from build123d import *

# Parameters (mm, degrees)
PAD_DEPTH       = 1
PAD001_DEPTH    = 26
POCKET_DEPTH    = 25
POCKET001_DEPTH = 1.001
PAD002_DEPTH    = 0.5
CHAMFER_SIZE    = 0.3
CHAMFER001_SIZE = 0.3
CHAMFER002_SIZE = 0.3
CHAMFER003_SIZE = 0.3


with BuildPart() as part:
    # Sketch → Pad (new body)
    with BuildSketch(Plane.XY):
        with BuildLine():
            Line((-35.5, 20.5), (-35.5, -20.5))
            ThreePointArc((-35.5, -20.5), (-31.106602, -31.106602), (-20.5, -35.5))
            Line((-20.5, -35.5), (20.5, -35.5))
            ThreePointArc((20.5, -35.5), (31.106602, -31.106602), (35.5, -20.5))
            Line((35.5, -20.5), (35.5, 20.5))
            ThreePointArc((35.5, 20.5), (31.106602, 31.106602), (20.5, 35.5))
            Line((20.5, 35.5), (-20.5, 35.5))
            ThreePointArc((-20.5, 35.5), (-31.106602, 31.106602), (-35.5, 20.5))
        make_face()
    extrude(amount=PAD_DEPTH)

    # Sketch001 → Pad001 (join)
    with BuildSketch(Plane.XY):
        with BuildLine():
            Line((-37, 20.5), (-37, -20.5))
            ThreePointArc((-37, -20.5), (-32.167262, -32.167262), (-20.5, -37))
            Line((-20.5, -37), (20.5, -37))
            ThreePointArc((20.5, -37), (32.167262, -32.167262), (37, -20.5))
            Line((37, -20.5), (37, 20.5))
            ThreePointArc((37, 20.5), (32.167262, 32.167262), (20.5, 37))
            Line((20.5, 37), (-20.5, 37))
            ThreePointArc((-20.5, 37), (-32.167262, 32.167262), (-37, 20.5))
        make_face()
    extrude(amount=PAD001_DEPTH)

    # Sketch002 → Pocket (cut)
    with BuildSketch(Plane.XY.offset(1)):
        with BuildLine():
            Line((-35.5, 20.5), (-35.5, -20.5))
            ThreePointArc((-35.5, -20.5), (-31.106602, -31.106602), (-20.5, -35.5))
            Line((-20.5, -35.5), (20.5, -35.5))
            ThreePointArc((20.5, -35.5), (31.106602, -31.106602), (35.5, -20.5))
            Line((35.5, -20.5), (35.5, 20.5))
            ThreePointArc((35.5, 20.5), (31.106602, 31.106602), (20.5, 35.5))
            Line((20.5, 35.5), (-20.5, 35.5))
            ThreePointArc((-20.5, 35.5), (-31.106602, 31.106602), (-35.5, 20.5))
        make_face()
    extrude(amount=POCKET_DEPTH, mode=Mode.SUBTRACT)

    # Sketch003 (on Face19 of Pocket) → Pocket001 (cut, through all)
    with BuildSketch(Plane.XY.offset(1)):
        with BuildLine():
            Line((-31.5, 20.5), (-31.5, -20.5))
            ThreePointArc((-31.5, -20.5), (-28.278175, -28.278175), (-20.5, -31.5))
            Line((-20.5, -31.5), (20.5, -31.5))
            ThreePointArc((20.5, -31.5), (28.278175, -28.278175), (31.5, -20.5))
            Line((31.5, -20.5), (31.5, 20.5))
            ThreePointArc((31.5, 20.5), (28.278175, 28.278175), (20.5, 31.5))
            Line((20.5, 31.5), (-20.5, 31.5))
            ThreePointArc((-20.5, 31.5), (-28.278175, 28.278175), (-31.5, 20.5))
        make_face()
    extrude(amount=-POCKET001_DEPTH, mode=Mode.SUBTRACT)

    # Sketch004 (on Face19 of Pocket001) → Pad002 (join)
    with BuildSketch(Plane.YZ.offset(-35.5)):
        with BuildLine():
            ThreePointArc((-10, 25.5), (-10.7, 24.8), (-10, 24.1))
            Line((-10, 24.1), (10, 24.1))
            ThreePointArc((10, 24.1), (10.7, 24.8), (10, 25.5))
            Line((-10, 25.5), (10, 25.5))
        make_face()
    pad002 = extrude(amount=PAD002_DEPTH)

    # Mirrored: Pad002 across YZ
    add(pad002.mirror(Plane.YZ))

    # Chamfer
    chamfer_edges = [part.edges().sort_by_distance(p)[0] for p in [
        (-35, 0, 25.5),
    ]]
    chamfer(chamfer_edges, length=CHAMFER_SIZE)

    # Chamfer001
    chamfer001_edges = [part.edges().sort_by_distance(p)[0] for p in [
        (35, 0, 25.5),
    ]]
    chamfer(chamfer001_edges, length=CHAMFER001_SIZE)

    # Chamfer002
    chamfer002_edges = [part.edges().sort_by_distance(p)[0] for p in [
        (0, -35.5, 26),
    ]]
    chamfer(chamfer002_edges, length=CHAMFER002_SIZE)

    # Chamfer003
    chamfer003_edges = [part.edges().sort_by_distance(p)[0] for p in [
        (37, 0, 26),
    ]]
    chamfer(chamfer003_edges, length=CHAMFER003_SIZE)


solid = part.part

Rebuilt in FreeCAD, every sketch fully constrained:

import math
import FreeCAD as App
import Part
import Sketcher
Q = App.Units.Quantity


def edges_at(feature, points):
    """Names of the edges that pass closest to the given points."""
    edges = feature.Shape.Edges
    near = lambda p: min(range(len(edges)), key=lambda i: edges[i].distToShape(Part.Vertex(*p))[0])
    return sorted({f"Edge{near(p) + 1}" for p in points})

doc = App.newDocument("Part")
params = doc.addObject("Spreadsheet::Sheet", "Params")
for row, (alias, value) in enumerate([
    ("sketch1_radius", "14.999999 mm"),
    ("sketch1_width", "41 mm"),
    ("pad1_length", "1 mm"),
    ("sketch2_radius", "16.5 mm"),
    ("sketch2_width", "41 mm"),
    ("pad2_length", "26 mm"),
    ("sketch3_radius", "14.999999 mm"),
    ("sketch3_width", "41 mm"),
    ("pocket1_length", "25 mm"),
    ("sketch4_radius", "10.999999 mm"),
    ("sketch4_width", "41 mm"),
    ("sketch5_radius", "0.7 mm"),
    ("sketch5_width", "20 mm"),
    ("pad3_length", "0.5 mm"),
    ("chamfer_size", "0.3 mm"),
    ("chamfer2_size", "0.3 mm"),
    ("chamfer3_size", "0.3 mm"),
    ("chamfer4_size", "0.3 mm"),
], start=1):
    params.set(f"A{row}", alias)
    params.set(f"B{row}", "=" + value)
    params.setAlias(f"B{row}", alias)

body = doc.addObject("PartDesign::Body", "Body")

sketch1 = body.newObject("Sketcher::SketchObject", "Sketch")
sketch1.AttachmentSupport = (doc.getObject("XY_Plane"), [""])
sketch1.MapMode = "FlatFace"
sketch1.addGeometry([
    Part.LineSegment(App.Vector(-35.5, 20.5, 0), App.Vector(-35.5, -20.5, 0)),
    Part.ArcOfCircle(Part.Circle(App.Vector(-20.500001, -20.500001, 0), App.Vector(0, 0, 1), 14.999999), math.radians(179.999996), math.radians(270.000004)),
    Part.LineSegment(App.Vector(-20.5, -35.5, 0), App.Vector(20.5, -35.5, 0)),
    Part.ArcOfCircle(Part.Circle(App.Vector(20.500001, -20.500001, 0), App.Vector(0, 0, 1), 14.999999), math.radians(-90.000004), math.radians(0.000004)),
    Part.LineSegment(App.Vector(35.5, -20.5, 0), App.Vector(35.5, 20.5, 0)),
    Part.ArcOfCircle(Part.Circle(App.Vector(20.500001, 20.500001, 0), App.Vector(0, 0, 1), 14.999999), math.radians(-0.000004), math.radians(90.000004)),
    Part.LineSegment(App.Vector(20.5, 35.5, 0), App.Vector(-20.5, 35.5, 0)),
    Part.ArcOfCircle(Part.Circle(App.Vector(-20.500001, 20.500001, 0), App.Vector(0, 0, 1), 14.999999), math.radians(89.999996), math.radians(180.000004)),
], False)
sketch1.addConstraint([
    Sketcher.Constraint("Tangent", 0, 2, 1, 1),
    Sketcher.Constraint("Tangent", 1, 2, 2, 1),
    Sketcher.Constraint("Tangent", 2, 2, 3, 1),
    Sketcher.Constraint("Tangent", 3, 2, 4, 1),
    Sketcher.Constraint("Tangent", 4, 2, 5, 1),
    Sketcher.Constraint("Tangent", 5, 2, 6, 1),
    Sketcher.Constraint("Tangent", 6, 2, 7, 1),
    Sketcher.Constraint("Tangent", 7, 2, 0, 1),
    Sketcher.Constraint("Vertical", 0),
    Sketcher.Constraint("Horizontal", 2),
    Sketcher.Constraint("Vertical", 4),
    Sketcher.Constraint("Horizontal", 6),
    Sketcher.Constraint("Equal", 1, 3),
    Sketcher.Constraint("Equal", 3, 5),
    Sketcher.Constraint("Equal", 5, 7),
    Sketcher.Constraint("Symmetric", 1, 3, 5, 3, -1, 1),
    Sketcher.Constraint("Equal", 6, 0),
    Sketcher.Constraint("Radius", 1, Q("14.999999 mm")),
    Sketcher.Constraint("DistanceX", 2, 1, 2, 2, Q("41 mm")),
])
sketch1.setExpression("Constraints[17]", "Params.sketch1_radius")
sketch1.setExpression("Constraints[18]", "Params.sketch1_width")
pad1 = body.newObject("PartDesign::Pad", "Pad")
pad1.Profile = sketch1
pad1.setExpression("Length", "Params.pad1_length")

sketch2 = body.newObject("Sketcher::SketchObject", "Sketch001")
sketch2.AttachmentSupport = (doc.getObject("XY_Plane"), [""])
sketch2.MapMode = "FlatFace"
sketch2.addGeometry([
    Part.LineSegment(App.Vector(-37, 20.5, 0), App.Vector(-37, -20.5, 0)),
    Part.ArcOfCircle(Part.Circle(App.Vector(-20.5, -20.5, 0), App.Vector(0, 0, 1), 16.5), math.radians(179.999999), math.radians(270.000001)),
    Part.LineSegment(App.Vector(-20.5, -37, 0), App.Vector(20.5, -37, 0)),
    Part.ArcOfCircle(Part.Circle(App.Vector(20.5, -20.5, 0), App.Vector(0, 0, 1), 16.5), math.radians(-90.000001), math.radians(0.000001)),
    Part.LineSegment(App.Vector(37, -20.5, 0), App.Vector(37, 20.5, 0)),
    Part.ArcOfCircle(Part.Circle(App.Vector(20.5, 20.5, 0), App.Vector(0, 0, 1), 16.5), math.radians(-0.000001), math.radians(90.000001)),
    Part.LineSegment(App.Vector(20.5, 37, 0), App.Vector(-20.5, 37, 0)),
    Part.ArcOfCircle(Part.Circle(App.Vector(-20.5, 20.5, 0), App.Vector(0, 0, 1), 16.5), math.radians(89.999999), math.radians(180.000001)),
], False)
sketch2.addConstraint([
    Sketcher.Constraint("Tangent", 0, 2, 1, 1),
    Sketcher.Constraint("Tangent", 1, 2, 2, 1),
    Sketcher.Constraint("Tangent", 2, 2, 3, 1),
    Sketcher.Constraint("Tangent", 3, 2, 4, 1),
    Sketcher.Constraint("Tangent", 4, 2, 5, 1),
    Sketcher.Constraint("Tangent", 5, 2, 6, 1),
    Sketcher.Constraint("Tangent", 6, 2, 7, 1),
    Sketcher.Constraint("Tangent", 7, 2, 0, 1),
    Sketcher.Constraint("Vertical", 0),
    Sketcher.Constraint("Horizontal", 2),
    Sketcher.Constraint("Vertical", 4),
    Sketcher.Constraint("Horizontal", 6),
    Sketcher.Constraint("Equal", 1, 3),
    Sketcher.Constraint("Equal", 3, 5),
    Sketcher.Constraint("Equal", 5, 7),
    Sketcher.Constraint("Symmetric", 1, 3, 5, 3, -1, 1),
    Sketcher.Constraint("Equal", 6, 0),
    Sketcher.Constraint("Radius", 1, Q("16.5 mm")),
    Sketcher.Constraint("DistanceX", 2, 1, 2, 2, Q("41 mm")),
])
sketch2.setExpression("Constraints[17]", "Params.sketch2_radius")
sketch2.setExpression("Constraints[18]", "Params.sketch2_width")
pad2 = body.newObject("PartDesign::Pad", "Pad001")
pad2.Profile = sketch2
pad2.setExpression("Length", "Params.pad2_length")

sketch3 = body.newObject("Sketcher::SketchObject", "Sketch002")
sketch3.AttachmentSupport = (doc.getObject("XY_Plane"), [""])
sketch3.MapMode = "FlatFace"
sketch3.AttachmentOffset = App.Placement(App.Vector(0, 0, 1), App.Rotation())
sketch3.addGeometry([
    Part.LineSegment(App.Vector(-35.5, 20.5, 0), App.Vector(-35.5, -20.5, 0)),
    Part.ArcOfCircle(Part.Circle(App.Vector(-20.500001, -20.500001, 0), App.Vector(0, 0, 1), 14.999999), math.radians(179.999996), math.radians(270.000004)),
    Part.LineSegment(App.Vector(-20.5, -35.5, 0), App.Vector(20.5, -35.5, 0)),
    Part.ArcOfCircle(Part.Circle(App.Vector(20.500001, -20.500001, 0), App.Vector(0, 0, 1), 14.999999), math.radians(-90.000004), math.radians(0.000004)),
    Part.LineSegment(App.Vector(35.5, -20.5, 0), App.Vector(35.5, 20.5, 0)),
    Part.ArcOfCircle(Part.Circle(App.Vector(20.500001, 20.500001, 0), App.Vector(0, 0, 1), 14.999999), math.radians(-0.000004), math.radians(90.000004)),
    Part.LineSegment(App.Vector(20.5, 35.5, 0), App.Vector(-20.5, 35.5, 0)),
    Part.ArcOfCircle(Part.Circle(App.Vector(-20.500001, 20.500001, 0), App.Vector(0, 0, 1), 14.999999), math.radians(89.999996), math.radians(180.000004)),
], False)
sketch3.addConstraint([
    Sketcher.Constraint("Tangent", 0, 2, 1, 1),
    Sketcher.Constraint("Tangent", 1, 2, 2, 1),
    Sketcher.Constraint("Tangent", 2, 2, 3, 1),
    Sketcher.Constraint("Tangent", 3, 2, 4, 1),
    Sketcher.Constraint("Tangent", 4, 2, 5, 1),
    Sketcher.Constraint("Tangent", 5, 2, 6, 1),
    Sketcher.Constraint("Tangent", 6, 2, 7, 1),
    Sketcher.Constraint("Tangent", 7, 2, 0, 1),
    Sketcher.Constraint("Vertical", 0),
    Sketcher.Constraint("Horizontal", 2),
    Sketcher.Constraint("Vertical", 4),
    Sketcher.Constraint("Horizontal", 6),
    Sketcher.Constraint("Equal", 1, 3),
    Sketcher.Constraint("Equal", 3, 5),
    Sketcher.Constraint("Equal", 5, 7),
    Sketcher.Constraint("Symmetric", 1, 3, 5, 3, -1, 1),
    Sketcher.Constraint("Equal", 6, 0),
    Sketcher.Constraint("Radius", 1, Q("14.999999 mm")),
    Sketcher.Constraint("DistanceX", 2, 1, 2, 2, Q("41 mm")),
])
sketch3.setExpression("Constraints[17]", "Params.sketch3_radius")
sketch3.setExpression("Constraints[18]", "Params.sketch3_width")
pocket1 = body.newObject("PartDesign::Pocket", "Pocket")
pocket1.Profile = sketch3
pocket1.setExpression("Length", "Params.pocket1_length")
pocket1.Reversed = True

sketch4 = body.newObject("Sketcher::SketchObject", "Sketch003")
sketch4.AttachmentSupport = (doc.getObject("XY_Plane"), [""])
sketch4.MapMode = "FlatFace"
sketch4.AttachmentOffset = App.Placement(App.Vector(0, 0, 1), App.Rotation())
sketch4.addGeometry([
    Part.LineSegment(App.Vector(-31.5, 20.5, 0), App.Vector(-31.5, -20.5, 0)),
    Part.ArcOfCircle(Part.Circle(App.Vector(-20.500001, -20.500001, 0), App.Vector(0, 0, 1), 10.999999), math.radians(179.999993), math.radians(270.000007)),
    Part.LineSegment(App.Vector(-20.5, -31.5, 0), App.Vector(20.5, -31.5, 0)),
    Part.ArcOfCircle(Part.Circle(App.Vector(20.500001, -20.500001, 0), App.Vector(0, 0, 1), 10.999999), math.radians(-90.000007), math.radians(0.000007)),
    Part.LineSegment(App.Vector(31.5, -20.5, 0), App.Vector(31.5, 20.5, 0)),
    Part.ArcOfCircle(Part.Circle(App.Vector(20.500001, 20.500001, 0), App.Vector(0, 0, 1), 10.999999), math.radians(-0.000007), math.radians(90.000007)),
    Part.LineSegment(App.Vector(20.5, 31.5, 0), App.Vector(-20.5, 31.5, 0)),
    Part.ArcOfCircle(Part.Circle(App.Vector(-20.500001, 20.500001, 0), App.Vector(0, 0, 1), 10.999999), math.radians(89.999993), math.radians(180.000007)),
], False)
sketch4.addConstraint([
    Sketcher.Constraint("Tangent", 0, 2, 1, 1),
    Sketcher.Constraint("Tangent", 1, 2, 2, 1),
    Sketcher.Constraint("Tangent", 2, 2, 3, 1),
    Sketcher.Constraint("Tangent", 3, 2, 4, 1),
    Sketcher.Constraint("Tangent", 4, 2, 5, 1),
    Sketcher.Constraint("Tangent", 5, 2, 6, 1),
    Sketcher.Constraint("Tangent", 6, 2, 7, 1),
    Sketcher.Constraint("Tangent", 7, 2, 0, 1),
    Sketcher.Constraint("Vertical", 0),
    Sketcher.Constraint("Horizontal", 2),
    Sketcher.Constraint("Vertical", 4),
    Sketcher.Constraint("Horizontal", 6),
    Sketcher.Constraint("Equal", 1, 3),
    Sketcher.Constraint("Equal", 3, 5),
    Sketcher.Constraint("Equal", 5, 7),
    Sketcher.Constraint("Symmetric", 1, 3, 5, 3, -1, 1),
    Sketcher.Constraint("Equal", 6, 0),
    Sketcher.Constraint("Radius", 1, Q("10.999999 mm")),
    Sketcher.Constraint("DistanceX", 2, 1, 2, 2, Q("41 mm")),
])
sketch4.setExpression("Constraints[17]", "Params.sketch4_radius")
sketch4.setExpression("Constraints[18]", "Params.sketch4_width")
pocket2 = body.newObject("PartDesign::Pocket", "Pocket001")
pocket2.Profile = sketch4
pocket2.Type = "ThroughAll"

sketch5 = body.newObject("Sketcher::SketchObject", "Sketch004")
sketch5.AttachmentSupport = (doc.getObject("YZ_Plane"), [""])
sketch5.MapMode = "FlatFace"
sketch5.AttachmentOffset = App.Placement(App.Vector(0, 0, -35.5), App.Rotation())
sketch5.addGeometry([
    Part.ArcOfCircle(Part.Circle(App.Vector(-10, 24.8, 0), App.Vector(0, 0, 1), 0.7), math.radians(90), math.radians(270)),
    Part.LineSegment(App.Vector(-10, 24.1, 0), App.Vector(10, 24.1, 0)),
    Part.ArcOfCircle(Part.Circle(App.Vector(10, 24.8, 0), App.Vector(0, 0, 1), 0.7), math.radians(-90), math.radians(90)),
    Part.LineSegment(App.Vector(10, 25.5, 0), App.Vector(-10, 25.5, 0)),
], False)
sketch5.addConstraint([
    Sketcher.Constraint("Tangent", 0, 2, 1, 1),
    Sketcher.Constraint("Tangent", 1, 2, 2, 1),
    Sketcher.Constraint("Tangent", 2, 2, 3, 1),
    Sketcher.Constraint("Tangent", 3, 2, 0, 1),
    Sketcher.Constraint("Horizontal", 1),
    Sketcher.Constraint("Horizontal", 3),
    Sketcher.Constraint("Radius", 0, Q("0.7 mm")),
    Sketcher.Constraint("DistanceX", 1, 1, 1, 2, Q("20 mm")),
    Sketcher.Constraint("DistanceX", 0, 3, -1, 1, Q("10 mm")),
    Sketcher.Constraint("DistanceY", -1, 1, 0, 3, Q("24.8 mm")),
])
sketch5.setExpression("Constraints[6]", "Params.sketch5_radius")
sketch5.setExpression("Constraints[7]", "Params.sketch5_width")
pad3 = body.newObject("PartDesign::Pad", "Pad002")
pad3.Profile = sketch5
pad3.setExpression("Length", "Params.pad3_length")
doc.recompute()

mirrored = body.newObject("PartDesign::Mirrored", "Mirrored")
mirrored.Originals = [pad3]
mirrored.MirrorPlane = (doc.getObject("YZ_Plane"), [""])
body.Tip = mirrored
doc.recompute()

chamfer = body.newObject("PartDesign::Chamfer", "Chamfer")
chamfer.Base = (mirrored, edges_at(mirrored, [(-35, 0, 25.5)]))
chamfer.setExpression("Size", "Params.chamfer_size")
doc.recompute()

chamfer2 = body.newObject("PartDesign::Chamfer", "Chamfer001")
chamfer2.Base = (chamfer, edges_at(chamfer, [(35, 0, 25.5)]))
chamfer2.setExpression("Size", "Params.chamfer2_size")
doc.recompute()

chamfer3 = body.newObject("PartDesign::Chamfer", "Chamfer002")
chamfer3.Base = (chamfer2, edges_at(chamfer2, [(0, -35.5, 26)]))
chamfer3.setExpression("Size", "Params.chamfer3_size")
doc.recompute()

chamfer4 = body.newObject("PartDesign::Chamfer", "Chamfer003")
chamfer4.Base = (chamfer3, edges_at(chamfer3, [(37, 0, 26)]))
chamfer4.setExpression("Size", "Params.chamfer4_size")

doc.recompute()
